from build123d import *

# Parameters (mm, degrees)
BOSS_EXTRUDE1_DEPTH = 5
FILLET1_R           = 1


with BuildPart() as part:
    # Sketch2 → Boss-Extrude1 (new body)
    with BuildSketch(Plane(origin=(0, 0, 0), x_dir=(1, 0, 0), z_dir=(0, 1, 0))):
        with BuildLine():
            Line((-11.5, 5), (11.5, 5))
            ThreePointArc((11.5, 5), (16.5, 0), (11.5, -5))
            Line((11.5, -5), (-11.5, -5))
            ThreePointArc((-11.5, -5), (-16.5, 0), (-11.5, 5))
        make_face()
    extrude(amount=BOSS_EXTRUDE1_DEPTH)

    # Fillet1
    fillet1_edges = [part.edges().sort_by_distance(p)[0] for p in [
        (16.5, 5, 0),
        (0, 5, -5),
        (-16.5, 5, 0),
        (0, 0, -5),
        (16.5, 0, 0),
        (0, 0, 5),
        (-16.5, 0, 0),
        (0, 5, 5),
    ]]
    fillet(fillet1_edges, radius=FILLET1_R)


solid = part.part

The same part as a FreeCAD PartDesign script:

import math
import FreeCAD as App
import Part
import Sketcher

V = App.Vector


def edges_at(feature, points):
    """Names of the edges that pass closest to the given points."""
    edges = feature.Shape.Edges
    near = lambda p: min(range(len(edges)), key=lambda i: edges[i].distToShape(Part.Vertex(*p))[0])
    return sorted({f"Edge{near(p) + 1}" for p in points})

doc = App.newDocument("Part")
params = doc.addObject("Spreadsheet::Sheet", "Params")
for row, (alias, value) in enumerate([
    ("sketch1_radius", "5 mm"),
    ("sketch1_width", "23 mm"),
    ("pad1_length", "5 mm"),
    ("fillet_radius", "1 mm"),
], start=1):
    params.set(f"A{row}", alias)
    params.set(f"B{row}", "=" + value)
    params.setAlias(f"B{row}", alias)

body = doc.addObject("PartDesign::Body", "Body")

sketch1 = doc.addObject("Sketcher::SketchObject", "Sketch")
body.addObject(sketch1)
sketch1.AttachmentSupport = (doc.XZ_Plane, [""])
sketch1.MapMode = "FlatFace"
sketch1.addGeometry(Part.LineSegment(V(11.5, -5, 0), V(-11.5, -5, 0)), False)
sketch1.addGeometry(Part.ArcOfCircle(Part.Circle(V(-11.5, 0, 0), V(0, 0, 1), 5), math.radians(90), math.radians(270)), False)
sketch1.addGeometry(Part.LineSegment(V(-11.5, 5, 0), V(11.5, 5, 0)), False)
sketch1.addGeometry(Part.ArcOfCircle(Part.Circle(V(11.5, 0, 0), V(0, 0, 1), 5), math.radians(-90), math.radians(90)), False)
sketch1.addConstraint(Sketcher.Constraint("Tangent", 0, 2, 1, 2))
sketch1.addConstraint(Sketcher.Constraint("Tangent", 1, 1, 2, 1))
sketch1.addConstraint(Sketcher.Constraint("Tangent", 2, 2, 3, 2))
sketch1.addConstraint(Sketcher.Constraint("Tangent", 3, 1, 0, 1))
sketch1.addConstraint(Sketcher.Constraint("Horizontal", 0))
sketch1.addConstraint(Sketcher.Constraint("Horizontal", 2))
sketch1.addConstraint(Sketcher.Constraint("Symmetric", 1, 3, 3, 3, -1, 1))
sketch1.addConstraint(Sketcher.Constraint("Radius", 1, 5.0))
sketch1.addConstraint(Sketcher.Constraint("DistanceX", 0, 2, 0, 1, 23.0))
sketch1.setExpression("Constraints[7]", "Params.sketch1_radius")
sketch1.setExpression("Constraints[8]", "Params.sketch1_width")
pad1 = doc.addObject("PartDesign::Pad", "Pad")
body.addObject(pad1)
pad1.Profile = sketch1
pad1.setExpression("Length", "Params.pad1_length")
pad1.Reversed = True
doc.recompute()

fillet = doc.addObject("PartDesign::Fillet", "Fillet")
body.addObject(fillet)
fillet.Base = (pad1, edges_at(pad1, [
    (16.5, 5, 0),
    (0, 5, -5),
    (-16.5, 5, 0),
    (0, 0, -5),
    (16.5, 0, 0),
    (0, 0, 5),
    (-16.5, 0, 0),
    (0, 5, 5),
]))
fillet.setExpression("Radius", "Params.fillet_radius")

doc.recompute()
